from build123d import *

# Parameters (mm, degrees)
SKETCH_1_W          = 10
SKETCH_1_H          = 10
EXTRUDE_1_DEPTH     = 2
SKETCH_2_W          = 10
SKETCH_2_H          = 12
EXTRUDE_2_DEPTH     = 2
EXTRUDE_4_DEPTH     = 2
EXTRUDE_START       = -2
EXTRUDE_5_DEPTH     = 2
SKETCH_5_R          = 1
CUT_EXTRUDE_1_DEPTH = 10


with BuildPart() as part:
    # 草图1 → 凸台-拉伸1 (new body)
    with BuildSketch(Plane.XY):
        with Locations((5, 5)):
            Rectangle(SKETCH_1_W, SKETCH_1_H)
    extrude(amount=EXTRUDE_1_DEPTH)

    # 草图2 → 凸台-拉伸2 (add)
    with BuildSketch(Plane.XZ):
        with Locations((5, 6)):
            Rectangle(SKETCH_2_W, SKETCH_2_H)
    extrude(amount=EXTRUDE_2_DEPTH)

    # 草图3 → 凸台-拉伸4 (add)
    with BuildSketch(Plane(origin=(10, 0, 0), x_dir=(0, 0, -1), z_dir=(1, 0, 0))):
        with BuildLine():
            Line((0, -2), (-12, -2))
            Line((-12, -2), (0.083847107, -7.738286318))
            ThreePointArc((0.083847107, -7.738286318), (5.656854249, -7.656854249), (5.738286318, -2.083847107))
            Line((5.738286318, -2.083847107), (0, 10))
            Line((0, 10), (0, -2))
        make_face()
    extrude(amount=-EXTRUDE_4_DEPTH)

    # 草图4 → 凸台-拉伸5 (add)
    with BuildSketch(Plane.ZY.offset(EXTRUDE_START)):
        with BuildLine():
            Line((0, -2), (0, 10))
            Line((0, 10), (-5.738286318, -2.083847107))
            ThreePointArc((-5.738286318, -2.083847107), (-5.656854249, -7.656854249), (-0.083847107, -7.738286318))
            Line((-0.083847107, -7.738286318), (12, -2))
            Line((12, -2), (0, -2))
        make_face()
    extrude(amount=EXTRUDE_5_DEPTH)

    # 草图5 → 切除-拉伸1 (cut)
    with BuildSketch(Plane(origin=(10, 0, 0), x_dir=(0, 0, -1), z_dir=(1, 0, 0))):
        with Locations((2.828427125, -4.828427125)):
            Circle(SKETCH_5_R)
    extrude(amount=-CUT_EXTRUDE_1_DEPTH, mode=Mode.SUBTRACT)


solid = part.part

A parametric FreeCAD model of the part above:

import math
import FreeCAD as App
import Part
import Sketcher

V = App.Vector

doc = App.newDocument("Part")
body = doc.addObject("PartDesign::Body", "Body")

# Sketch on XY plane
sketch1 = body.newObject("Sketcher::SketchObject", "Sketch")
sketch1.AttachmentSupport = (doc.getObject("XY_Plane"), [""])
sketch1.MapMode = "FlatFace"
sketch1.addGeometry(Part.LineSegment(V(0, 10, 0), V(0, 0, 0)), False)
sketch1.addGeometry(Part.LineSegment(V(0, 0, 0), V(10, 0, 0)), False)
sketch1.addGeometry(Part.LineSegment(V(10, 0, 0), V(10, 10, 0)), False)
sketch1.addGeometry(Part.LineSegment(V(10, 10, 0), V(0, 10, 0)), False)
sketch1.addConstraint(Sketcher.Constraint("Coincident", 0, 2, 1, 1))
sketch1.addConstraint(Sketcher.Constraint("Coincident", 1, 2, 2, 1))
sketch1.addConstraint(Sketcher.Constraint("Coincident", 2, 2, 3, 1))
sketch1.addConstraint(Sketcher.Constraint("Coincident", 3, 2, 0, 1))
sketch1.addConstraint(Sketcher.Constraint("Vertical", 0))
sketch1.addConstraint(Sketcher.Constraint("Horizontal", 1))
sketch1.addConstraint(Sketcher.Constraint("Vertical", 2))
sketch1.addConstraint(Sketcher.Constraint("Horizontal", 3))
sketch1.addConstraint(Sketcher.Constraint("Coincident", 0, 2, -1, 1))
sketch1.addConstraint(Sketcher.Constraint("Equal", 3, 0))
sketch1.addConstraint(Sketcher.Constraint("DistanceX", 1, 1, 1, 2, 10.0))
pad1 = body.newObject("PartDesign::Pad", "Pad")
pad1.Profile = sketch1
pad1.Length = 2

# Sketch on XZ plane
sketch2 = body.newObject("Sketcher::SketchObject", "Sketch001")
sketch2.AttachmentSupport = (doc.getObject("XZ_Plane"), [""])
sketch2.MapMode = "FlatFace"
sketch2.addGeometry(Part.LineSegment(V(0, 12, 0), V(0, 0, 0)), False)
sketch2.addGeometry(Part.LineSegment(V(0, 0, 0), V(10, 0, 0)), False)
sketch2.addGeometry(Part.LineSegment(V(10, 0, 0), V(10, 12, 0)), False)
sketch2.addGeometry(Part.LineSegment(V(10, 12, 0), V(0, 12, 0)), False)
sketch2.addConstraint(Sketcher.Constraint("Coincident", 0, 2, 1, 1))
sketch2.addConstraint(Sketcher.Constraint("Coincident", 1, 2, 2, 1))
sketch2.addConstraint(Sketcher.Constraint("Coincident", 2, 2, 3, 1))
sketch2.addConstraint(Sketcher.Constraint("Coincident", 3, 2, 0, 1))
sketch2.addConstraint(Sketcher.Constraint("Vertical", 0))
sketch2.addConstraint(Sketcher.Constraint("Horizontal", 1))
sketch2.addConstraint(Sketcher.Constraint("Vertical", 2))
sketch2.addConstraint(Sketcher.Constraint("Horizontal", 3))
sketch2.addConstraint(Sketcher.Constraint("Coincident", 0, 2, -1, 1))
sketch2.addConstraint(Sketcher.Constraint("DistanceX", 1, 1, 1, 2, 10.0))
sketch2.addConstraint(Sketcher.Constraint("DistanceY", 0, 2, 0, 1, 12.0))
pad2 = body.newObject("PartDesign::Pad", "Pad001")
pad2.Profile = sketch2
pad2.Length = 2

# Sketch on YZ plane
sketch3 = body.newObject("Sketcher::SketchObject", "Sketch002")
sketch3.AttachmentSupport = (doc.getObject("YZ_Plane"), [""])
sketch3.MapMode = "FlatFace"
sketch3.AttachmentOffset = App.Placement(V(0, 0, 10), App.Rotation())
sketch3.addGeometry(Part.LineSegment(V(-2, 0, 0), V(-2, 12, 0)), False)
sketch3.addGeometry(Part.LineSegment(V(-2, 12, 0), V(-7.7, -0.1, 0)), False)
sketch3.addGeometry(Part.ArcOfCircle(Part.Circle(V(-4.8, -2.8, 0), V(0, 0, 1), 4), math.radians(137), math.radians(313)), False)
sketch3.addGeometry(Part.LineSegment(V(-2.1, -5.7, 0), V(10, 0, 0)), False)
sketch3.addGeometry(Part.LineSegment(V(10, 0, 0), V(-2, 0, 0)), False)
sketch3.addConstraint(Sketcher.Constraint("Coincident", 0, 2, 1, 1))
sketch3.addConstraint(Sketcher.Constraint("Coincident", 1, 2, 2, 1))
sketch3.addConstraint(Sketcher.Constraint("Coincident", 2, 2, 3, 1))
sketch3.addConstraint(Sketcher.Constraint("Coincident", 3, 2, 4, 1))
sketch3.addConstraint(Sketcher.Constraint("Coincident", 4, 2, 0, 1))
sketch3.addConstraint(Sketcher.Constraint("Vertical", 0))
sketch3.addConstraint(Sketcher.Constraint("Horizontal", 4))
sketch3.addConstraint(Sketcher.Constraint("PointOnObject", 3, 2, -1))
sketch3.addConstraint(Sketcher.Constraint("Equal", 4, 0))
sketch3.addConstraint(Sketcher.Constraint("Equal", 1, 3))
sketch3.addConstraint(Sketcher.Constraint("Radius", 2, 4.0))
sketch3.addConstraint(Sketcher.Constraint("DistanceX", 4, 2, 4, 1, 12.0))
sketch3.addConstraint(Sketcher.Constraint("DistanceX", 0, 2, -1, 1, 2.0))
sketch3.addConstraint(Sketcher.Constraint("Distance", 1, 13.377118))
sketch3.addConstraint(Sketcher.Constraint("DistanceX", 1, 2, 2, 3, 2.909859))
sketch3.addConstraint(Sketcher.Constraint("DistanceX", 2, 3, 2, 2, 2.74458))
pad3 = body.newObject("PartDesign::Pad", "Pad002")
pad3.Profile = sketch3
pad3.Length = 2
pad3.Reversed = True

# Sketch on YZ plane
sketch4 = body.newObject("Sketcher::SketchObject", "Sketch003")
sketch4.AttachmentSupport = (doc.getObject("YZ_Plane"), [""])
sketch4.MapMode = "FlatFace"
sketch4.AttachmentOffset = App.Placement(V(0, 0, 2), App.Rotation())
sketch4.addGeometry(Part.LineSegment(V(-2, 0, 0), V(10, 0, 0)), False)
sketch4.addGeometry(Part.LineSegment(V(10, 0, 0), V(-2.1, -5.7, 0)), False)
sketch4.addGeometry(Part.ArcOfCircle(Part.Circle(V(-4.8, -2.8, 0), V(0, 0, 1), 4), math.radians(137), math.radians(313)), False)
sketch4.addGeometry(Part.LineSegment(V(-7.7, -0.1, 0), V(-2, 12, 0)), False)
sketch4.addGeometry(Part.LineSegment(V(-2, 12, 0), V(-2, 0, 0)), False)
sketch4.addConstraint(Sketcher.Constraint("Coincident", 0, 2, 1, 1))
sketch4.addConstraint(Sketcher.Constraint("Coincident", 1, 2, 2, 2))
sketch4.addConstraint(Sketcher.Constraint("Coincident", 2, 1, 3, 1))
sketch4.addConstraint(Sketcher.Constraint("Coincident", 3, 2, 4, 1))
sketch4.addConstraint(Sketcher.Constraint("Coincident", 4, 2, 0, 1))
sketch4.addConstraint(Sketcher.Constraint("Horizontal", 0))
sketch4.addConstraint(Sketcher.Constraint("Vertical", 4))
sketch4.addConstraint(Sketcher.Constraint("PointOnObject", 0, 2, -1))
sketch4.addConstraint(Sketcher.Constraint("Equal", 0, 4))
sketch4.addConstraint(Sketcher.Constraint("Equal", 1, 3))
sketch4.addConstraint(Sketcher.Constraint("Radius", 2, 4.0))
sketch4.addConstraint(Sketcher.Constraint("DistanceX", 0, 1, 0, 2, 12.0))
sketch4.addConstraint(Sketcher.Constraint("DistanceX", -1, 1, 0, 2, 10.0))
sketch4.addConstraint(Sketcher.Constraint("Distance", 1, 13.377118))
sketch4.addConstraint(Sketcher.Constraint("DistanceX", 2, 3, 1, 2, 2.74458))
sketch4.addConstraint(Sketcher.Constraint("DistanceX", 2, 1, 2, 3, 2.909859))
pad4 = body.newObject("PartDesign::Pad", "Pad003")
pad4.Profile = sketch4
pad4.Length = 2
pad4.Reversed = True

# Sketch on YZ plane
sketch5 = body.newObject("Sketcher::SketchObject", "Sketch004")
sketch5.AttachmentSupport = (doc.getObject("YZ_Plane"), [""])
sketch5.MapMode = "FlatFace"
sketch5.AttachmentOffset = App.Placement(V(0, 0, 10), App.Rotation())
sketch5.addGeometry(Part.Circle(V(-4.8, -2.8, 0), V(0, 0, 1), 1), False)
sketch5.addConstraint(Sketcher.Constraint("Diameter", 0, 2.0))
sketch5.addConstraint(Sketcher.Constraint("DistanceX", 0, 3, -1, 1, 4.828427))
sketch5.addConstraint(Sketcher.Constraint("DistanceY", 0, 3, -1, 1, 2.828427))
pocket1 = body.newObject("PartDesign::Pocket", "Pocket")
pocket1.Profile = sketch5
pocket1.Length = 10

doc.recompute()
